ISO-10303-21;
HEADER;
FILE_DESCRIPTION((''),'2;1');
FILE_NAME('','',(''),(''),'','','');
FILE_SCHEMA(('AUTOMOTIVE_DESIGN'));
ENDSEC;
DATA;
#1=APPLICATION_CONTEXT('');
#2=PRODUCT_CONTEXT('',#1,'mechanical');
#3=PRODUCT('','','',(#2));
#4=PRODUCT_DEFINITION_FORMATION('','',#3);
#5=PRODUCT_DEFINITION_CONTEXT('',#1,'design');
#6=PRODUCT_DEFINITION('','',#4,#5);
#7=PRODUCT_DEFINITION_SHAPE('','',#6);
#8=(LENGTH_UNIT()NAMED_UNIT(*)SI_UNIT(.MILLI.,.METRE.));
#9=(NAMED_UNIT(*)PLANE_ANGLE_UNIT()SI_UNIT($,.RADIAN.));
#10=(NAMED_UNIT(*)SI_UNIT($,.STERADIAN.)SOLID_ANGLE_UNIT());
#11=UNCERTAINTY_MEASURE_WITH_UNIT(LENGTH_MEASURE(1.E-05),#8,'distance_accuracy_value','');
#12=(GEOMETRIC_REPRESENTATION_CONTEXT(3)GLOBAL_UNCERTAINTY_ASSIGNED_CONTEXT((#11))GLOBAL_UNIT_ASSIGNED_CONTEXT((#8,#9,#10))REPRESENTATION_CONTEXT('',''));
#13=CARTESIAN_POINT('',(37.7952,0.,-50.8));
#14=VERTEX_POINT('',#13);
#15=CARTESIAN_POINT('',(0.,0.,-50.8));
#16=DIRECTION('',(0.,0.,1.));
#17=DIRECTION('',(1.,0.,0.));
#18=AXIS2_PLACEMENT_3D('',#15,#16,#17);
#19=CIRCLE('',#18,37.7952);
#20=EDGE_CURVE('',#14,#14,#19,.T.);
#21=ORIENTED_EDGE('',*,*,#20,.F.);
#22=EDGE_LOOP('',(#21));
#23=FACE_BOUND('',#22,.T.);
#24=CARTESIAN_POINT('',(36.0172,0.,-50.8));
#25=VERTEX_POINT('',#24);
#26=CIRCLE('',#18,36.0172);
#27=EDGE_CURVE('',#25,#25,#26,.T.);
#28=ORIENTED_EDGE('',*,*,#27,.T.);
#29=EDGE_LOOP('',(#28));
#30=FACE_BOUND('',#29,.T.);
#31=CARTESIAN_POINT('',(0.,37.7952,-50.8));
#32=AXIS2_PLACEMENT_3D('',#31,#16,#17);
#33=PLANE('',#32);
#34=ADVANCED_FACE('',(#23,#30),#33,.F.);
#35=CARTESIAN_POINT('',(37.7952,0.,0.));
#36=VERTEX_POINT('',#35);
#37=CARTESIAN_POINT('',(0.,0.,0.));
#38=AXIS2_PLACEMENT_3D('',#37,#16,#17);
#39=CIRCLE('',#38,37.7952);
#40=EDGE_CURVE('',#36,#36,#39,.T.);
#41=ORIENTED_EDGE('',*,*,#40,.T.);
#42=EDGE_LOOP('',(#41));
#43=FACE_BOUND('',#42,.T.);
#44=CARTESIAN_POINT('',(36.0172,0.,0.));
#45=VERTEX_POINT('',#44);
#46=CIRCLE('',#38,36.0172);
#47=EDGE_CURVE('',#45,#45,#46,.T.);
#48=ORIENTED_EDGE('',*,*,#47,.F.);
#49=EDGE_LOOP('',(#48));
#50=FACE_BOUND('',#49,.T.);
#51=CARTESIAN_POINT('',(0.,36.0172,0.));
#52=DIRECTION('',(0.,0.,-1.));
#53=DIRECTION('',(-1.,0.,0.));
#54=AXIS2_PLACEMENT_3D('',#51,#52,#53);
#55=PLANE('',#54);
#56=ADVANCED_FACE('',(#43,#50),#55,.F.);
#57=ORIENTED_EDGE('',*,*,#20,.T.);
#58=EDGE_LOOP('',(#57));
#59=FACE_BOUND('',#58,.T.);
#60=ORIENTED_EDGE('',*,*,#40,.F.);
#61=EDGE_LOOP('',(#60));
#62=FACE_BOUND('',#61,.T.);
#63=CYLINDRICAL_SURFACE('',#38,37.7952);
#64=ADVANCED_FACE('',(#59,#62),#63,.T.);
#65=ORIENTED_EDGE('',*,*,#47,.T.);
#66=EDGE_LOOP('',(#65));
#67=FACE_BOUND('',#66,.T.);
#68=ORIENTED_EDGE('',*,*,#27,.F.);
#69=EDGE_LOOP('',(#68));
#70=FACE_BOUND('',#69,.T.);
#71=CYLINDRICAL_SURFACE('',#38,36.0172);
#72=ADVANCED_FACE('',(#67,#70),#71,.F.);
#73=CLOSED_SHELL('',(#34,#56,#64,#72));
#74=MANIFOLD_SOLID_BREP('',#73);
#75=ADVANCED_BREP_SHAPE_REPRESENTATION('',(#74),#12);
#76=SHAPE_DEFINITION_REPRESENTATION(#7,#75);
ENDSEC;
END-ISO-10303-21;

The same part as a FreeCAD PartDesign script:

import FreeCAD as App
import Part
import Sketcher
Q = App.Units.Quantity

doc = App.newDocument("Part")
body = doc.addObject("PartDesign::Body", "Body")

sketch1 = body.newObject("Sketcher::SketchObject", "Sketch")
sketch1.AttachmentSupport = (doc.getObject("YZ_Plane"), [""])
sketch1.MapMode = "FlatFace"
sketch1.addGeometry(Part.LineSegment(App.Vector(37.8, 0, 0), App.Vector(36, 0, 0)), False)
sketch1.addGeometry(Part.LineSegment(App.Vector(36, 0, 0), App.Vector(36, -50.8, 0)), False)
sketch1.addGeometry(Part.LineSegment(App.Vector(36, -50.8, 0), App.Vector(37.8, -50.8, 0)), False)
sketch1.addGeometry(Part.LineSegment(App.Vector(37.8, -50.8, 0), App.Vector(37.8, 0, 0)), False)
sketch1.addConstraint(Sketcher.Constraint("Coincident", 0, 2, 1, 1))
sketch1.addConstraint(Sketcher.Constraint("Coincident", 1, 2, 2, 1))
sketch1.addConstraint(Sketcher.Constraint("Coincident", 2, 2, 3, 1))
sketch1.addConstraint(Sketcher.Constraint("Coincident", 3, 2, 0, 1))
sketch1.addConstraint(Sketcher.Constraint("Horizontal", 0))
sketch1.addConstraint(Sketcher.Constraint("Vertical", 1))
sketch1.addConstraint(Sketcher.Constraint("Horizontal", 2))
sketch1.addConstraint(Sketcher.Constraint("Vertical", 3))
sketch1.addConstraint(Sketcher.Constraint("PointOnObject", 0, 2, -1))
sketch1.addConstraint(Sketcher.Constraint("DistanceY", 1, 2, 1, 1, Q("2 in")))
sketch1.addConstraint(Sketcher.Constraint("DistanceX", 0, 2, 0, 1, Q("0.07 in")))
sketch1.addConstraint(Sketcher.Constraint("DistanceX", -1, 1, 0, 2, Q("1.418 in")))
revolution = body.newObject("PartDesign::Revolution", "Revolution")
revolution.Profile = sketch1
revolution.ReferenceAxis = (sketch1, ["V_Axis"])
revolution.Angle = 360

doc.recompute()
